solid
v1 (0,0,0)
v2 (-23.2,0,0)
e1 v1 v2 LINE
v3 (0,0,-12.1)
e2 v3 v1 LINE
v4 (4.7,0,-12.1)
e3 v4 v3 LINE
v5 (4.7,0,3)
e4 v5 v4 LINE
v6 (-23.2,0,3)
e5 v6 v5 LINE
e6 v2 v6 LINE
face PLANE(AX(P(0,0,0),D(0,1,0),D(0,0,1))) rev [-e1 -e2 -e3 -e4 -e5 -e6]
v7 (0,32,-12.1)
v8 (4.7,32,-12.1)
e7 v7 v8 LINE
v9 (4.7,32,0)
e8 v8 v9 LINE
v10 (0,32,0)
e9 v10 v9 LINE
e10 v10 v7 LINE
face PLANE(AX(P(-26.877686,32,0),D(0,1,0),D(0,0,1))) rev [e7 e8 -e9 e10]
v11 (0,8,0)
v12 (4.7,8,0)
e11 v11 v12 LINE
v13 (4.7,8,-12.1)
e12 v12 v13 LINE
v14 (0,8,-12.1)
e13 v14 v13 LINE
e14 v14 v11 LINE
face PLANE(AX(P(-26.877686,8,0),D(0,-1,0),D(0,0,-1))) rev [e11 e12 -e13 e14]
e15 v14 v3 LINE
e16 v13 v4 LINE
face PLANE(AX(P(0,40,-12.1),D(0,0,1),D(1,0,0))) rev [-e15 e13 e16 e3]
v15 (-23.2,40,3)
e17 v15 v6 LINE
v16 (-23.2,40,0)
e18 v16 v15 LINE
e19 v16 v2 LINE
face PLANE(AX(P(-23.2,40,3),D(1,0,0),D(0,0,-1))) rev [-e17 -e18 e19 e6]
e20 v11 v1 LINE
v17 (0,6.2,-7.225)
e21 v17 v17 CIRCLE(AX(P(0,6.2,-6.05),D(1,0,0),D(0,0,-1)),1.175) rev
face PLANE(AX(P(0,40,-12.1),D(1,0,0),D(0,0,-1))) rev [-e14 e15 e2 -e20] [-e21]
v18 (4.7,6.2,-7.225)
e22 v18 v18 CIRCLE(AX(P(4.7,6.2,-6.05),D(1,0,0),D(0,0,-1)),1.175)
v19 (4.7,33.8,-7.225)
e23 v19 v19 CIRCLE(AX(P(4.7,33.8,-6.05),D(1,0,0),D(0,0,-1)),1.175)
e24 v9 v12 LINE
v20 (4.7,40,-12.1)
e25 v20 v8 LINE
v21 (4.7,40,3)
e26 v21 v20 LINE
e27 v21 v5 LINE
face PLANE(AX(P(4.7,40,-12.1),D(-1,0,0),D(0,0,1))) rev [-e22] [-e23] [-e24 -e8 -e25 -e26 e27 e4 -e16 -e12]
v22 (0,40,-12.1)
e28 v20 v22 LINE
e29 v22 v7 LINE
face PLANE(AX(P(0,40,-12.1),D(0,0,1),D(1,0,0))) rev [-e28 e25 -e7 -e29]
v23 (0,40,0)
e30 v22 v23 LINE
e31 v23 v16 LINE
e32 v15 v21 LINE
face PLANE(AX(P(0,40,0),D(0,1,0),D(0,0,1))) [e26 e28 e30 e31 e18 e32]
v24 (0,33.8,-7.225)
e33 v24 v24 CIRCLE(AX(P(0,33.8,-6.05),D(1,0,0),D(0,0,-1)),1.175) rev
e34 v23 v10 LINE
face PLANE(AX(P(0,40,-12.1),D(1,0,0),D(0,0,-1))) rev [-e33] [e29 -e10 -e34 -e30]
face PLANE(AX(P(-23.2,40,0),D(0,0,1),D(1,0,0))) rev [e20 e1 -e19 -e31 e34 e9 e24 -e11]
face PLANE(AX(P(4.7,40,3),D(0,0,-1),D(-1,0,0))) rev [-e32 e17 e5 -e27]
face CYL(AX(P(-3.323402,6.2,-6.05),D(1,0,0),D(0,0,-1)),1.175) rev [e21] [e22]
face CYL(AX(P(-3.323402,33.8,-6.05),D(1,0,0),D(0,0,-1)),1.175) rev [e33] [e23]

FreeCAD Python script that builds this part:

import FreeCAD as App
import Part
import Sketcher

V = App.Vector
Q = App.Units.Quantity

doc = App.newDocument("Part")
body = doc.addObject("PartDesign::Body", "Body")

sketch1 = body.newObject("Sketcher::SketchObject", "Sketch")
sketch1.AttachmentSupport = (doc.getObject("XZ_Plane"), [""])
sketch1.MapMode = "FlatFace"
sketch1.addGeometry(Part.LineSegment(V(4.7, -12.1, 0), V(0, -12.1, 0)), False)
sketch1.addGeometry(Part.LineSegment(V(0, -12.1, 0), V(0, 0, 0)), False)
sketch1.addGeometry(Part.LineSegment(V(0, 0, 0), V(-23.2, 0, 0)), False)
sketch1.addGeometry(Part.LineSegment(V(-23.2, 0, 0), V(-23.2, 3, 0)), False)
sketch1.addGeometry(Part.LineSegment(V(-23.2, 3, 0), V(4.7, 3, 0)), False)
sketch1.addGeometry(Part.LineSegment(V(4.7, 3, 0), V(4.7, -12.1, 0)), False)
sketch1.addConstraint(Sketcher.Constraint("Coincident", 0, 2, 1, 1))
sketch1.addConstraint(Sketcher.Constraint("Coincident", 1, 2, 2, 1))
sketch1.addConstraint(Sketcher.Constraint("Coincident", 2, 2, 3, 1))
sketch1.addConstraint(Sketcher.Constraint("Coincident", 3, 2, 4, 1))
sketch1.addConstraint(Sketcher.Constraint("Coincident", 4, 2, 5, 1))
sketch1.addConstraint(Sketcher.Constraint("Coincident", 5, 2, 0, 1))
sketch1.addConstraint(Sketcher.Constraint("Horizontal", 0))
sketch1.addConstraint(Sketcher.Constraint("Vertical", 1))
sketch1.addConstraint(Sketcher.Constraint("Horizontal", 2))
sketch1.addConstraint(Sketcher.Constraint("Vertical", 3))
sketch1.addConstraint(Sketcher.Constraint("Horizontal", 4))
sketch1.addConstraint(Sketcher.Constraint("Vertical", 5))
sketch1.addConstraint(Sketcher.Constraint("Coincident", 1, 2, -1, 1))
sketch1.addConstraint(Sketcher.Constraint("DistanceY", 3, 1, 3, 2, Q("3 mm")))
sketch1.addConstraint(Sketcher.Constraint("DistanceX", 0, 2, 0, 1, Q("4.7 mm")))
sketch1.addConstraint(Sketcher.Constraint("DistanceX", 2, 2, 2, 1, Q("23.2 mm")))
sketch1.addConstraint(Sketcher.Constraint("DistanceY", 1, 1, 1, 2, Q("12.1 mm")))
pad1 = body.newObject("PartDesign::Pad", "Pad")
pad1.Profile = sketch1
pad1.Length = 40
pad1.Reversed = True

sketch2 = body.newObject("Sketcher::SketchObject", "Sketch001")
sketch2.AttachmentSupport = (doc.getObject("YZ_Plane"), [""])
sketch2.MapMode = "FlatFace"
sketch2.AttachmentOffset = App.Placement(V(0, 0, 4.7), App.Rotation())
sketch2.addGeometry(Part.LineSegment(V(32, 0, 0), V(8, 0, 0)), False)
sketch2.addGeometry(Part.LineSegment(V(8, 0, 0), V(8, -12.1, 0)), False)
sketch2.addGeometry(Part.LineSegment(V(8, -12.1, 0), V(32, -12.1, 0)), False)
sketch2.addGeometry(Part.LineSegment(V(32, -12.1, 0), V(32, 0, 0)), False)
sketch2.addConstraint(Sketcher.Constraint("Coincident", 0, 2, 1, 1))
sketch2.addConstraint(Sketcher.Constraint("Coincident", 1, 2, 2, 1))
sketch2.addConstraint(Sketcher.Constraint("Coincident", 2, 2, 3, 1))
sketch2.addConstraint(Sketcher.Constraint("Coincident", 3, 2, 0, 1))
sketch2.addConstraint(Sketcher.Constraint("Horizontal", 0))
sketch2.addConstraint(Sketcher.Constraint("Vertical", 1))
sketch2.addConstraint(Sketcher.Constraint("Horizontal", 2))
sketch2.addConstraint(Sketcher.Constraint("Vertical", 3))
sketch2.addConstraint(Sketcher.Constraint("PointOnObject", 0, 2, -1))
sketch2.addConstraint(Sketcher.Constraint("DistanceX", 0, 2, 0, 1, Q("24 mm")))
sketch2.addConstraint(Sketcher.Constraint("DistanceY", 1, 2, 1, 1, Q("12.1 mm")))
sketch2.addConstraint(Sketcher.Constraint("DistanceX", -1, 1, 0, 2, Q("8 mm")))
pocket1 = body.newObject("PartDesign::Pocket", "Pocket")
pocket1.Profile = sketch2
pocket1.Length = 4.7

sketch3 = body.newObject("Sketcher::SketchObject", "Sketch002")
sketch3.AttachmentSupport = (doc.getObject("YZ_Plane"), [""])
sketch3.MapMode = "FlatFace"
sketch3.AttachmentOffset = App.Placement(V(0, 0, 4.7), App.Rotation())
sketch3.addGeometry(Part.Circle(V(33.8, -6.05, 0), V(0, 0, 1), 1.175), False)
sketch3.addGeometry(Part.Circle(V(6.2, -6.05, 0), V(0, 0, 1), 1.175), False)
sketch3.addConstraint(Sketcher.Constraint("Equal", 0, 1))
sketch3.addConstraint(Sketcher.Constraint("Horizontal", 0, 3, 1, 3))
sketch3.addConstraint(Sketcher.Constraint("Diameter", 0, Q("2.35 mm")))
sketch3.addConstraint(Sketcher.Constraint("DistanceX", -1, 1, 0, 3, Q("33.8 mm")))
sketch3.addConstraint(Sketcher.Constraint("DistanceX", -1, 1, 1, 3, Q("6.2 mm")))
sketch3.addConstraint(Sketcher.Constraint("DistanceY", 0, 3, -1, 1, Q("6.05 mm")))
pocket2 = body.newObject("PartDesign::Pocket", "Pocket001")
pocket2.Profile = sketch3
pocket2.Length = 4.7

doc.recompute()
